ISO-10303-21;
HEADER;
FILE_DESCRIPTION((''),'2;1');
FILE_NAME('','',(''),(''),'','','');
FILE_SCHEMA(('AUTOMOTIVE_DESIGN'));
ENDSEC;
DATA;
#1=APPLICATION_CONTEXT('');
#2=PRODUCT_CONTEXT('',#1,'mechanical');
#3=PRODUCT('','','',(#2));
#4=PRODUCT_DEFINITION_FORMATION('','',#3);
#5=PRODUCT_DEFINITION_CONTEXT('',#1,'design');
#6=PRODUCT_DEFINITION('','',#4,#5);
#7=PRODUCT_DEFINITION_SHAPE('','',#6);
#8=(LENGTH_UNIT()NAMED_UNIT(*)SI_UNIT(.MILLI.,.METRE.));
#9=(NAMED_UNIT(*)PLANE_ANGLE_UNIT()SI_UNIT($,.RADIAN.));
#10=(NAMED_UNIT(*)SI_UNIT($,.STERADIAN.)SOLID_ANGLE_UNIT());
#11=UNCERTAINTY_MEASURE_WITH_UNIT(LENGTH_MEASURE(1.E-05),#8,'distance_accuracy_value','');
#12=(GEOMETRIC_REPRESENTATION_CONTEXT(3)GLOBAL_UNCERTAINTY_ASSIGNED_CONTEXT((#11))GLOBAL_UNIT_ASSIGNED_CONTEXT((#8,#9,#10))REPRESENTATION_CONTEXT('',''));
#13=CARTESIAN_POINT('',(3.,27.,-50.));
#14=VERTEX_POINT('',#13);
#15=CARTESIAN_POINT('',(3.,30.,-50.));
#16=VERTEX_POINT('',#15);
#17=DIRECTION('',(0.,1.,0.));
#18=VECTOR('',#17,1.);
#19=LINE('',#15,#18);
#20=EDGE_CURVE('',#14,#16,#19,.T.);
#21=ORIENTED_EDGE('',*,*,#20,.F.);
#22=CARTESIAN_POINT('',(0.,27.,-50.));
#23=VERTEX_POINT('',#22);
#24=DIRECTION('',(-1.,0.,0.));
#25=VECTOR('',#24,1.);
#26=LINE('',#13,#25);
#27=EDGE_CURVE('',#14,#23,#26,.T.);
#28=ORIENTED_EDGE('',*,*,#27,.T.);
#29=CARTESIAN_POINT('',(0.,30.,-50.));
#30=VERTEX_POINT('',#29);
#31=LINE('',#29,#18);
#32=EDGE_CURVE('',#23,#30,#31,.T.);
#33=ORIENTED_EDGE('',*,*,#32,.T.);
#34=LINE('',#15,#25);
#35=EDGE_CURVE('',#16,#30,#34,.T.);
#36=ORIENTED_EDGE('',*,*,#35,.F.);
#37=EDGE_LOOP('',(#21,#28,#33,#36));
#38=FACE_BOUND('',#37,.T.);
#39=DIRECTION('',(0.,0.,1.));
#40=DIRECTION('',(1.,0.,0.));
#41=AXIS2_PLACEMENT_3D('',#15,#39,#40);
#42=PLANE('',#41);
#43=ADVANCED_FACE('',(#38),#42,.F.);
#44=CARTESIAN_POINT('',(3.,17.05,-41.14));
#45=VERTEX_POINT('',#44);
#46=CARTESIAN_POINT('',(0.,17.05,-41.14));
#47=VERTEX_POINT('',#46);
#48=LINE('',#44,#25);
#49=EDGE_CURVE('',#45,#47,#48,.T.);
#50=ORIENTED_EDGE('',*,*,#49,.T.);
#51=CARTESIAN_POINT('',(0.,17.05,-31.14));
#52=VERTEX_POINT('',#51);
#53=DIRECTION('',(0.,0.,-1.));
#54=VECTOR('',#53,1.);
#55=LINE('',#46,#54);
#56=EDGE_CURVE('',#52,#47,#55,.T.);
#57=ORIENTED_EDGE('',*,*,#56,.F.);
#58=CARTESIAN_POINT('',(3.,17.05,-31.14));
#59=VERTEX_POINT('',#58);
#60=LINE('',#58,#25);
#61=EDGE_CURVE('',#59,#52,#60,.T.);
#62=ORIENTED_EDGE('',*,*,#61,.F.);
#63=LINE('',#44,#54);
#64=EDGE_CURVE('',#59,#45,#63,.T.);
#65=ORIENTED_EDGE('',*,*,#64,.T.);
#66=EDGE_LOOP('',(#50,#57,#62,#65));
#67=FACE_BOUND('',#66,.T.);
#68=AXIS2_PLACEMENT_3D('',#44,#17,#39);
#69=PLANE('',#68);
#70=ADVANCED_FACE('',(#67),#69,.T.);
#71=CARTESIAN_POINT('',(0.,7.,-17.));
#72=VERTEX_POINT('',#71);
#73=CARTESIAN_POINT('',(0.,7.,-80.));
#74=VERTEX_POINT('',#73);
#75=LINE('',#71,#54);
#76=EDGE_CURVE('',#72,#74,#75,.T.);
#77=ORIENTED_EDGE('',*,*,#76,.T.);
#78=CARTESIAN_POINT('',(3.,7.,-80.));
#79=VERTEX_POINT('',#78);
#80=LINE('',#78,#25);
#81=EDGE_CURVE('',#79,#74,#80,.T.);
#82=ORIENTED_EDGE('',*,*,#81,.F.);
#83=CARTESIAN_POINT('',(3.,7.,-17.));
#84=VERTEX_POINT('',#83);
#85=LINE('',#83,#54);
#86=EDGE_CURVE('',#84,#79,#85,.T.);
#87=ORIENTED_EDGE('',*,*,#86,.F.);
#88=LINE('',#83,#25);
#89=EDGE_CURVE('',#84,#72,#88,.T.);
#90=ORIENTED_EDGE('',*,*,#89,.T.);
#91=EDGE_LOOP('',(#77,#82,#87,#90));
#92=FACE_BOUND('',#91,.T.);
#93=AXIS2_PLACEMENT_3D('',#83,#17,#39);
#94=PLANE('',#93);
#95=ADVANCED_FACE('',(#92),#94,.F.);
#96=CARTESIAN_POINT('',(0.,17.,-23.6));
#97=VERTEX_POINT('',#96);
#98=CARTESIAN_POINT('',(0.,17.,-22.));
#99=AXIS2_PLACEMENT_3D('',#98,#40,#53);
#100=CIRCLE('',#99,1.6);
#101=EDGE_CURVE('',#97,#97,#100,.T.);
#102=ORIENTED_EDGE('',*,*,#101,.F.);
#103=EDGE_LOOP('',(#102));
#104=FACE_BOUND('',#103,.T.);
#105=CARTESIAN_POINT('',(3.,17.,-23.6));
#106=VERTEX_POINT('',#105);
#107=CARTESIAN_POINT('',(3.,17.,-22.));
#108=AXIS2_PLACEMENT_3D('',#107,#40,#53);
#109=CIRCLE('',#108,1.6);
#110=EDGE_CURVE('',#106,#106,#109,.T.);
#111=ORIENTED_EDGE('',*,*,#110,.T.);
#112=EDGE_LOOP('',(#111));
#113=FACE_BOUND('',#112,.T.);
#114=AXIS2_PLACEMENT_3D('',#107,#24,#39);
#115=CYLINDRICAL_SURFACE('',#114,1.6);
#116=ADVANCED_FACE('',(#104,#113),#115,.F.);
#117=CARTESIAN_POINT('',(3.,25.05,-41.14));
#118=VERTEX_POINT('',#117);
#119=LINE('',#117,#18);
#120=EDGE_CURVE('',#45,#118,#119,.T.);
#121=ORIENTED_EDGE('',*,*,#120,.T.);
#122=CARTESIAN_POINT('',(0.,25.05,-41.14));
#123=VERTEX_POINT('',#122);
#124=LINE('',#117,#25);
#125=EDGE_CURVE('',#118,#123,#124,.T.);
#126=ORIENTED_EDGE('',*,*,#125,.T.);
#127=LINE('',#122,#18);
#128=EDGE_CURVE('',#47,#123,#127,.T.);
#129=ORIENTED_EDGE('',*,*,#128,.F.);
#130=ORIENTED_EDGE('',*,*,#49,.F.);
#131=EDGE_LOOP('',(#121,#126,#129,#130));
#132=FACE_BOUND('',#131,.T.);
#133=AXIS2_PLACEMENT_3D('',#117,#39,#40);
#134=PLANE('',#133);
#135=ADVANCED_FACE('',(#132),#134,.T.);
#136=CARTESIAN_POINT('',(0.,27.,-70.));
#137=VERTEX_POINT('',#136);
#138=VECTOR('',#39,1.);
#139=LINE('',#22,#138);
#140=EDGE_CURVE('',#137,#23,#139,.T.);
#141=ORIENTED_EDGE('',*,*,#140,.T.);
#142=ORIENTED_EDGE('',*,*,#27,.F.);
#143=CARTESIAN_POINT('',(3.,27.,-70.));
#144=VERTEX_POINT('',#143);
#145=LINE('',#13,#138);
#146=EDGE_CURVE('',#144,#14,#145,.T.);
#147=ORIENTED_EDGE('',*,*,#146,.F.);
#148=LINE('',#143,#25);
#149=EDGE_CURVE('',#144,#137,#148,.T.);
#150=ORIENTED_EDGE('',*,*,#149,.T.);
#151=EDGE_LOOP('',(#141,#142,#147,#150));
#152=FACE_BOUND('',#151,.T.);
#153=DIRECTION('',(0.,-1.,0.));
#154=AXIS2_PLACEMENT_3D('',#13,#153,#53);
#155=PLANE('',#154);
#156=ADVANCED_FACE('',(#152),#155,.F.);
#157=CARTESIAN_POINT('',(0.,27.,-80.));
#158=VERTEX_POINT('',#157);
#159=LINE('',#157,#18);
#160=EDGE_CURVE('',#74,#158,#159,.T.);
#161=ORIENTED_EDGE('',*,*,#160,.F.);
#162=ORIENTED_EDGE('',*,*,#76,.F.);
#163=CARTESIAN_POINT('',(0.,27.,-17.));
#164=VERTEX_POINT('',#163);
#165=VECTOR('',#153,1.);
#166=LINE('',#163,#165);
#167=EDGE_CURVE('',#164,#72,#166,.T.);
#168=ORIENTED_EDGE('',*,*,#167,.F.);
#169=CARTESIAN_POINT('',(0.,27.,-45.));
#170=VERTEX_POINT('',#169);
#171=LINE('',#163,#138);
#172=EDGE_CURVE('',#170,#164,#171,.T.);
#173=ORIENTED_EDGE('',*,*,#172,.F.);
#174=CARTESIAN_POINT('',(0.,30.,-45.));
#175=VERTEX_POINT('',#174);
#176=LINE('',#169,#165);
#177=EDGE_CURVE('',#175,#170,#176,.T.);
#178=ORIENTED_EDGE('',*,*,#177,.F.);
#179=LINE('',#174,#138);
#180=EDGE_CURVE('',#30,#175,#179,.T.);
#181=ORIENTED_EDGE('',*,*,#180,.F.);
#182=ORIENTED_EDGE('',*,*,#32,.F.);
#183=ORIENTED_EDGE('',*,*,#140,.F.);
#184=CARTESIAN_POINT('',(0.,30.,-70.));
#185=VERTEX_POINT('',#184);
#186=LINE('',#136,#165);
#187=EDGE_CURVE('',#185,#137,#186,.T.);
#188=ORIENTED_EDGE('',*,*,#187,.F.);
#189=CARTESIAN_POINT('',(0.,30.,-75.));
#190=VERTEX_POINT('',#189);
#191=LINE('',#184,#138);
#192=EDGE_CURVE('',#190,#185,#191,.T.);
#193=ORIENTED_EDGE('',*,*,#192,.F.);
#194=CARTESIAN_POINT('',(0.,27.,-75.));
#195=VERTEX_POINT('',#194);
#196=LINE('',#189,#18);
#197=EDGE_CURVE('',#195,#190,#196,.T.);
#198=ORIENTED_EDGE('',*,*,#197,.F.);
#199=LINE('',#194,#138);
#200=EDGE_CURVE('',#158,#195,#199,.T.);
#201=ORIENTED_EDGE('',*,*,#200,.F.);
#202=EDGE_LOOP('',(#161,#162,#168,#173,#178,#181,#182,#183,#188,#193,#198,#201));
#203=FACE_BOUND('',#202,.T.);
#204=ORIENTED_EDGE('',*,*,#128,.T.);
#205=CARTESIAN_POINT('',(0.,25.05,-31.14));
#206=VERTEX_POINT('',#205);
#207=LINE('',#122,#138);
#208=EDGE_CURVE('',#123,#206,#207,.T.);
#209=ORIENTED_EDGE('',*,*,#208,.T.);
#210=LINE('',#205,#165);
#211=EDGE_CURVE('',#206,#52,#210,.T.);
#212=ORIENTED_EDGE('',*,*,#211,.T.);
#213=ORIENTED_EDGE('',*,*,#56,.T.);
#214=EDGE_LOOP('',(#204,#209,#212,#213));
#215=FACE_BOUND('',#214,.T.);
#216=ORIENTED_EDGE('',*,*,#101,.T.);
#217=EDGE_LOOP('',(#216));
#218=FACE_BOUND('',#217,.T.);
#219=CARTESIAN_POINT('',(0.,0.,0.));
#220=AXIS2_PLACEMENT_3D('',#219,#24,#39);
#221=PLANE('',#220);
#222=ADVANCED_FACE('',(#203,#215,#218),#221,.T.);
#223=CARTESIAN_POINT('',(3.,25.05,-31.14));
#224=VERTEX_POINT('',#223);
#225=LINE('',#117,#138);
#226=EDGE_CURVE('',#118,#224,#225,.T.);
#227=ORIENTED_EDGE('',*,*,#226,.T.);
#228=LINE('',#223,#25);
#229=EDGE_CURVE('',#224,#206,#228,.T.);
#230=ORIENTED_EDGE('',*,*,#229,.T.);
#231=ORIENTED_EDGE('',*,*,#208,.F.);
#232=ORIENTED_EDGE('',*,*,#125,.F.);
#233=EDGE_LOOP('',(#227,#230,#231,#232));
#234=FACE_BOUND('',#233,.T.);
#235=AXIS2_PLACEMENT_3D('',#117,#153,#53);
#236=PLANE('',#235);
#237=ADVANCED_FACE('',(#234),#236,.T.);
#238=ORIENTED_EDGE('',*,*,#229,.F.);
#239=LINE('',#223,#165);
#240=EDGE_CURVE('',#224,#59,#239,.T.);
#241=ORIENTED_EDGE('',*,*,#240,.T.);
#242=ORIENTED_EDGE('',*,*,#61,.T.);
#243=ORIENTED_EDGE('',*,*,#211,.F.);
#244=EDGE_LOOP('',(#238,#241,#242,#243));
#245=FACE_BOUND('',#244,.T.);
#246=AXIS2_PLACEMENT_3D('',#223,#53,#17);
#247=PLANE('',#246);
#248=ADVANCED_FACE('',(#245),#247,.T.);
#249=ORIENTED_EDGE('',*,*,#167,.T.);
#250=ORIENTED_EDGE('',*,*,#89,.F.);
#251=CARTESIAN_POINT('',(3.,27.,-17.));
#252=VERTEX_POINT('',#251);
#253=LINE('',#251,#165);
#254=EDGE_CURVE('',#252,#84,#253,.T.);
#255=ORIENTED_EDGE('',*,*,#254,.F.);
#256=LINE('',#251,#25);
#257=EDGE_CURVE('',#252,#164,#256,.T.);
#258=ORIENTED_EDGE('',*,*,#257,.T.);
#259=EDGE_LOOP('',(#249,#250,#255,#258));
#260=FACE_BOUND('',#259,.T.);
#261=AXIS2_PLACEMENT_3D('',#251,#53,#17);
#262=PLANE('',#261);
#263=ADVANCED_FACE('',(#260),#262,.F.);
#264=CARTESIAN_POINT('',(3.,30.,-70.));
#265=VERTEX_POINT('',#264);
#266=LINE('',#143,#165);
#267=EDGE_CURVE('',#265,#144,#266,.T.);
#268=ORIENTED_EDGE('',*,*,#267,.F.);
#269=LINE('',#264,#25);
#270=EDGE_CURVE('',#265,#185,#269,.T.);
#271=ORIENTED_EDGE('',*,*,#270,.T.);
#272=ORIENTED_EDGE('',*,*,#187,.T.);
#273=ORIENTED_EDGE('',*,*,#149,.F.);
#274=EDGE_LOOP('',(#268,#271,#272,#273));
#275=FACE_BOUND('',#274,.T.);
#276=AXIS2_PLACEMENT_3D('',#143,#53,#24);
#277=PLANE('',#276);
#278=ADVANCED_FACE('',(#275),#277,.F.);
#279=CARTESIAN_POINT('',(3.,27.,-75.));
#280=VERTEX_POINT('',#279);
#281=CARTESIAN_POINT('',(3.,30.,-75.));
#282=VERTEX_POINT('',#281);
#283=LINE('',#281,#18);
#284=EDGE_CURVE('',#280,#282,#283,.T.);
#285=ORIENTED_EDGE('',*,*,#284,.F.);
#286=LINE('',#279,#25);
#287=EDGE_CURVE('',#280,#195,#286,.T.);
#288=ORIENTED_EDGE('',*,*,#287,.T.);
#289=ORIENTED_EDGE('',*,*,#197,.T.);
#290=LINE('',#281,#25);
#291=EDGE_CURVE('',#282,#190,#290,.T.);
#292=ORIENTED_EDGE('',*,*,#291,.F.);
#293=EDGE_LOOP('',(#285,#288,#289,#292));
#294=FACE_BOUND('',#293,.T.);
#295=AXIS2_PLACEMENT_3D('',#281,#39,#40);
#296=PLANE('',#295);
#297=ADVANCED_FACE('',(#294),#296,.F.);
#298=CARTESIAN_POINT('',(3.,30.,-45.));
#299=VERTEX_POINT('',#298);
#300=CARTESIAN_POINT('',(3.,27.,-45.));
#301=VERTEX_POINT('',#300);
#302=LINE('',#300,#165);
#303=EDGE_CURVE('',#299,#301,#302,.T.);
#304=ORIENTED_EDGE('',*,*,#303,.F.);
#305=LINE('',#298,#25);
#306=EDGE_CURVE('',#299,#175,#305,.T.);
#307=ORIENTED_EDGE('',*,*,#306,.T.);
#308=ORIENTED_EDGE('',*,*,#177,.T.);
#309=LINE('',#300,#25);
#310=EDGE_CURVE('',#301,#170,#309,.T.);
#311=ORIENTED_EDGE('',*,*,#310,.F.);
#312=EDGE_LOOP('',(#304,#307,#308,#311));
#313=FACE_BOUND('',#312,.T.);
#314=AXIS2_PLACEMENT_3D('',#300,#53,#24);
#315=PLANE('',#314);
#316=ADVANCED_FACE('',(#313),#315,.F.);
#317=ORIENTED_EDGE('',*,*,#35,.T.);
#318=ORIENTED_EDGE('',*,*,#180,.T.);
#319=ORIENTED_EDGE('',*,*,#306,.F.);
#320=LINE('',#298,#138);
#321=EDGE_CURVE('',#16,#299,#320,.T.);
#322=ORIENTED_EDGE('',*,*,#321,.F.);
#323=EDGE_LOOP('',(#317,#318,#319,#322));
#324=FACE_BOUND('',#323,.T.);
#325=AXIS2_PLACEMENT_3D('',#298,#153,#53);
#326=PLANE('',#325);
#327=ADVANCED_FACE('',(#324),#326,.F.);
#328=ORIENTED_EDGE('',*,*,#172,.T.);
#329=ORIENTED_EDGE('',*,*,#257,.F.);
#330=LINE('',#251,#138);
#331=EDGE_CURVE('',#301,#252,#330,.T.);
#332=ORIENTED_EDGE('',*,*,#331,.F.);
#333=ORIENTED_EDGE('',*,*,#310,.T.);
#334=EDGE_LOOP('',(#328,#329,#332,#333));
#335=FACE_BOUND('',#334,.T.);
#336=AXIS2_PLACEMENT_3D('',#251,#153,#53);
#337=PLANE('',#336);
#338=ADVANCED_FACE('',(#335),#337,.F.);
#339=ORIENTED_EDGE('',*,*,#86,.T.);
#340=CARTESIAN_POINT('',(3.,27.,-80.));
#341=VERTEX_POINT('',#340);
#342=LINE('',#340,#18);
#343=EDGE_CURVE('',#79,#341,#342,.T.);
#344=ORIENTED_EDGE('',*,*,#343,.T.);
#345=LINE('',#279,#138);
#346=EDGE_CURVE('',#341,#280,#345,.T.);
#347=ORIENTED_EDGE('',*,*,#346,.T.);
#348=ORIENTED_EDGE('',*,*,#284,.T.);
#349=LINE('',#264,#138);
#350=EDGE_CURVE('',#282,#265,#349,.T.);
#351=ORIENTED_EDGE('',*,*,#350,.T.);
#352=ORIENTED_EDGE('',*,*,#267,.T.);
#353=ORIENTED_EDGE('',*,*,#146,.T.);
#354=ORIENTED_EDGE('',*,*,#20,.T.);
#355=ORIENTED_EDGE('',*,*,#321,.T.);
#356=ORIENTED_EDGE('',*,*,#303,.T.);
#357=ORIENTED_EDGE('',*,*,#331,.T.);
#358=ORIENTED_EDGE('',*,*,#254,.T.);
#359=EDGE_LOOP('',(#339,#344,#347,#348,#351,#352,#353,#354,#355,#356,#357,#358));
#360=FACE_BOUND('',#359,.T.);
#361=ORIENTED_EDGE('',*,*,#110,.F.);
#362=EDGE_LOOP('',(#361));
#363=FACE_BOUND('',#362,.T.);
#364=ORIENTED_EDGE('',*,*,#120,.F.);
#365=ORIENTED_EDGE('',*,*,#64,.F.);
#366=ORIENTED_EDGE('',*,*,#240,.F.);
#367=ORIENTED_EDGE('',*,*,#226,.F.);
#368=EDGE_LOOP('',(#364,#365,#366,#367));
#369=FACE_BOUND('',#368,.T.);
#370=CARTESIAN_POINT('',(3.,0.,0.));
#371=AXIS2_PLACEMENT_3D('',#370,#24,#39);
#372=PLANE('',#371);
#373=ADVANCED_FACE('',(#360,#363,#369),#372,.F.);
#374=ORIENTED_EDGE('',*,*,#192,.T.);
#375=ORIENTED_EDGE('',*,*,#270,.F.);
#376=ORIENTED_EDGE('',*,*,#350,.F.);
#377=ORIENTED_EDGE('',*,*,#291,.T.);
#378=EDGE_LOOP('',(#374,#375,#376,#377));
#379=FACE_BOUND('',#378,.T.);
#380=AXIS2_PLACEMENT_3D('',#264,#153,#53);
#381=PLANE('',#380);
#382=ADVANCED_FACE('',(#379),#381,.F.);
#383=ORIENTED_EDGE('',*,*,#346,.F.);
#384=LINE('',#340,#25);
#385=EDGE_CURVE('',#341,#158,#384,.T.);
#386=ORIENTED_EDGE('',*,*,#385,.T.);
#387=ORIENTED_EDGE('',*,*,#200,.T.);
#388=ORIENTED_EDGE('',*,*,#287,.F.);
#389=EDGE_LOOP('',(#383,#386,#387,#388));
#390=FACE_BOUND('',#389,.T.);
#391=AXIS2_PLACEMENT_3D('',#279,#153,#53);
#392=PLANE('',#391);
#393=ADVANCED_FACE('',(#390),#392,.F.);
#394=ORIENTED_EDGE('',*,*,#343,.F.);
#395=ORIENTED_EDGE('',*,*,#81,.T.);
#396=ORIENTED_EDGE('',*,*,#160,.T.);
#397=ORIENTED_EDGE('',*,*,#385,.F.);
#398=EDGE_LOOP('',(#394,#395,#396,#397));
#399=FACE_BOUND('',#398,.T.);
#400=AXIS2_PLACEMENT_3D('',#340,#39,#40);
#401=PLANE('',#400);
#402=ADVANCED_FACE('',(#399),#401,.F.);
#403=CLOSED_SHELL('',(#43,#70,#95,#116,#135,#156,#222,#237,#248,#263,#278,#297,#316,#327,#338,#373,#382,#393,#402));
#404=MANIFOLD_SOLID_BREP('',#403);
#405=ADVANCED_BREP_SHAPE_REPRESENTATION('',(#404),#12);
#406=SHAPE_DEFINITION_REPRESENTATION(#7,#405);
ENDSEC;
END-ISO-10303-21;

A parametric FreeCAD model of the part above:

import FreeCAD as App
import Part
import Sketcher
from FreeCAD import Vector

doc = App.newDocument("Part")
body = doc.addObject("PartDesign::Body", "Body")

# Sketch on YZ plane
sketch1 = body.newObject("Sketcher::SketchObject", "Sketch")
sketch1.AttachmentSupport = (doc.getObject("YZ_Plane"), [""])
sketch1.MapMode = "FlatFace"
sketch1.addGeometry(Part.LineSegment(Vector(27, -17, 0), Vector(7, -17, 0)), False)
sketch1.addGeometry(Part.LineSegment(Vector(7, -17, 0), Vector(7, -80, 0)), False)
sketch1.addGeometry(Part.LineSegment(Vector(7, -80, 0), Vector(27, -80, 0)), False)
sketch1.addGeometry(Part.LineSegment(Vector(27, -80, 0), Vector(27, -75, 0)), False)
sketch1.addGeometry(Part.LineSegment(Vector(27, -75, 0), Vector(30, -75, 0)), False)
sketch1.addGeometry(Part.LineSegment(Vector(30, -75, 0), Vector(30, -70, 0)), False)
sketch1.addGeometry(Part.LineSegment(Vector(30, -70, 0), Vector(27, -70, 0)), False)
sketch1.addGeometry(Part.LineSegment(Vector(27, -70, 0), Vector(27, -50, 0)), False)
sketch1.addGeometry(Part.LineSegment(Vector(27, -50, 0), Vector(30, -50, 0)), False)
sketch1.addGeometry(Part.LineSegment(Vector(30, -50, 0), Vector(30, -45, 0)), False)
sketch1.addGeometry(Part.LineSegment(Vector(30, -45, 0), Vector(27, -45, 0)), False)
sketch1.addGeometry(Part.LineSegment(Vector(27, -45, 0), Vector(27, -17, 0)), False)
sketch1.addGeometry(Part.Circle(Vector(17, -22, 0), Vector(0, 0, 1), 1.6), False)
sketch1.addGeometry(Part.LineSegment(Vector(17.1, -41.1, 0), Vector(17.1, -31.1, 0)), False)
sketch1.addGeometry(Part.LineSegment(Vector(17.1, -31.1, 0), Vector(25.1, -31.1, 0)), False)
sketch1.addGeometry(Part.LineSegment(Vector(25.1, -31.1, 0), Vector(25.1, -41.1, 0)), False)
sketch1.addGeometry(Part.LineSegment(Vector(25.1, -41.1, 0), Vector(17.1, -41.1, 0)), False)
sketch1.addConstraint(Sketcher.Constraint("Coincident", 0, 2, 1, 1))
sketch1.addConstraint(Sketcher.Constraint("Coincident", 1, 2, 2, 1))
sketch1.addConstraint(Sketcher.Constraint("Coincident", 2, 2, 3, 1))
sketch1.addConstraint(Sketcher.Constraint("Coincident", 3, 2, 4, 1))
sketch1.addConstraint(Sketcher.Constraint("Coincident", 4, 2, 5, 1))
sketch1.addConstraint(Sketcher.Constraint("Coincident", 5, 2, 6, 1))
sketch1.addConstraint(Sketcher.Constraint("Coincident", 6, 2, 7, 1))
sketch1.addConstraint(Sketcher.Constraint("Coincident", 7, 2, 8, 1))
sketch1.addConstraint(Sketcher.Constraint("Coincident", 8, 2, 9, 1))
sketch1.addConstraint(Sketcher.Constraint("Coincident", 9, 2, 10, 1))
sketch1.addConstraint(Sketcher.Constraint("Coincident", 10, 2, 11, 1))
sketch1.addConstraint(Sketcher.Constraint("Coincident", 11, 2, 0, 1))
sketch1.addConstraint(Sketcher.Constraint("Coincident", 13, 2, 14, 1))
sketch1.addConstraint(Sketcher.Constraint("Coincident", 14, 2, 15, 1))
sketch1.addConstraint(Sketcher.Constraint("Coincident", 15, 2, 16, 1))
sketch1.addConstraint(Sketcher.Constraint("Coincident", 16, 2, 13, 1))
sketch1.addConstraint(Sketcher.Constraint("Horizontal", 0))
sketch1.addConstraint(Sketcher.Constraint("Vertical", 1))
sketch1.addConstraint(Sketcher.Constraint("Horizontal", 2))
sketch1.addConstraint(Sketcher.Constraint("Vertical", 3))
sketch1.addConstraint(Sketcher.Constraint("Horizontal", 4))
sketch1.addConstraint(Sketcher.Constraint("Vertical", 5))
sketch1.addConstraint(Sketcher.Constraint("Horizontal", 6))
sketch1.addConstraint(Sketcher.Constraint("Vertical", 7))
sketch1.addConstraint(Sketcher.Constraint("Horizontal", 8))
sketch1.addConstraint(Sketcher.Constraint("Vertical", 9))
sketch1.addConstraint(Sketcher.Constraint("Horizontal", 10))
sketch1.addConstraint(Sketcher.Constraint("Vertical", 11))
sketch1.addConstraint(Sketcher.Constraint("Vertical", 13))
sketch1.addConstraint(Sketcher.Constraint("Horizontal", 14))
sketch1.addConstraint(Sketcher.Constraint("Vertical", 15))
sketch1.addConstraint(Sketcher.Constraint("Horizontal", 16))
sketch1.addConstraint(Sketcher.Constraint("Vertical", 3, 2, 6, 2))
sketch1.addConstraint(Sketcher.Constraint("Vertical", 5, 2, 8, 2))
sketch1.addConstraint(Sketcher.Constraint("Vertical", 7, 2, 10, 2))
sketch1.addConstraint(Sketcher.Constraint("Equal", 3, 5))
sketch1.addConstraint(Sketcher.Constraint("Equal", 2, 7))
sketch1.addConstraint(Sketcher.Constraint("Equal", 5, 9))
sketch1.addConstraint(Sketcher.Constraint("Diameter", 12, 3.2))
sketch1.addConstraint(Sketcher.Constraint("DistanceX", 0, 2, 0, 1, 20.0))
sketch1.addConstraint(Sketcher.Constraint("DistanceX", 4, 1, 4, 2, 3.0))
sketch1.addConstraint(Sketcher.Constraint("DistanceX", 14, 1, 14, 2, 8.0))
sketch1.addConstraint(Sketcher.Constraint("DistanceY", 1, 2, 1, 1, 63.0))
sketch1.addConstraint(Sketcher.Constraint("DistanceY", 3, 1, 3, 2, 5.0))
sketch1.addConstraint(Sketcher.Constraint("DistanceY", 13, 1, 13, 2, 10.0))
sketch1.addConstraint(Sketcher.Constraint("DistanceX", -1, 1, 12, 3, 17.0))
sketch1.addConstraint(Sketcher.Constraint("DistanceY", 12, 3, -1, 1, 22.0))
sketch1.addConstraint(Sketcher.Constraint("DistanceX", -1, 1, 0, 2, 7.0))
sketch1.addConstraint(Sketcher.Constraint("DistanceY", 0, 2, -1, 1, 17.0))
sketch1.addConstraint(Sketcher.Constraint("DistanceX", -1, 1, 13, 2, 17.05))
sketch1.addConstraint(Sketcher.Constraint("DistanceY", 13, 2, -1, 1, 31.14))
pad1 = body.newObject("PartDesign::Pad", "Pad")
pad1.Profile = sketch1
pad1.Length = 3

doc.recompute()
